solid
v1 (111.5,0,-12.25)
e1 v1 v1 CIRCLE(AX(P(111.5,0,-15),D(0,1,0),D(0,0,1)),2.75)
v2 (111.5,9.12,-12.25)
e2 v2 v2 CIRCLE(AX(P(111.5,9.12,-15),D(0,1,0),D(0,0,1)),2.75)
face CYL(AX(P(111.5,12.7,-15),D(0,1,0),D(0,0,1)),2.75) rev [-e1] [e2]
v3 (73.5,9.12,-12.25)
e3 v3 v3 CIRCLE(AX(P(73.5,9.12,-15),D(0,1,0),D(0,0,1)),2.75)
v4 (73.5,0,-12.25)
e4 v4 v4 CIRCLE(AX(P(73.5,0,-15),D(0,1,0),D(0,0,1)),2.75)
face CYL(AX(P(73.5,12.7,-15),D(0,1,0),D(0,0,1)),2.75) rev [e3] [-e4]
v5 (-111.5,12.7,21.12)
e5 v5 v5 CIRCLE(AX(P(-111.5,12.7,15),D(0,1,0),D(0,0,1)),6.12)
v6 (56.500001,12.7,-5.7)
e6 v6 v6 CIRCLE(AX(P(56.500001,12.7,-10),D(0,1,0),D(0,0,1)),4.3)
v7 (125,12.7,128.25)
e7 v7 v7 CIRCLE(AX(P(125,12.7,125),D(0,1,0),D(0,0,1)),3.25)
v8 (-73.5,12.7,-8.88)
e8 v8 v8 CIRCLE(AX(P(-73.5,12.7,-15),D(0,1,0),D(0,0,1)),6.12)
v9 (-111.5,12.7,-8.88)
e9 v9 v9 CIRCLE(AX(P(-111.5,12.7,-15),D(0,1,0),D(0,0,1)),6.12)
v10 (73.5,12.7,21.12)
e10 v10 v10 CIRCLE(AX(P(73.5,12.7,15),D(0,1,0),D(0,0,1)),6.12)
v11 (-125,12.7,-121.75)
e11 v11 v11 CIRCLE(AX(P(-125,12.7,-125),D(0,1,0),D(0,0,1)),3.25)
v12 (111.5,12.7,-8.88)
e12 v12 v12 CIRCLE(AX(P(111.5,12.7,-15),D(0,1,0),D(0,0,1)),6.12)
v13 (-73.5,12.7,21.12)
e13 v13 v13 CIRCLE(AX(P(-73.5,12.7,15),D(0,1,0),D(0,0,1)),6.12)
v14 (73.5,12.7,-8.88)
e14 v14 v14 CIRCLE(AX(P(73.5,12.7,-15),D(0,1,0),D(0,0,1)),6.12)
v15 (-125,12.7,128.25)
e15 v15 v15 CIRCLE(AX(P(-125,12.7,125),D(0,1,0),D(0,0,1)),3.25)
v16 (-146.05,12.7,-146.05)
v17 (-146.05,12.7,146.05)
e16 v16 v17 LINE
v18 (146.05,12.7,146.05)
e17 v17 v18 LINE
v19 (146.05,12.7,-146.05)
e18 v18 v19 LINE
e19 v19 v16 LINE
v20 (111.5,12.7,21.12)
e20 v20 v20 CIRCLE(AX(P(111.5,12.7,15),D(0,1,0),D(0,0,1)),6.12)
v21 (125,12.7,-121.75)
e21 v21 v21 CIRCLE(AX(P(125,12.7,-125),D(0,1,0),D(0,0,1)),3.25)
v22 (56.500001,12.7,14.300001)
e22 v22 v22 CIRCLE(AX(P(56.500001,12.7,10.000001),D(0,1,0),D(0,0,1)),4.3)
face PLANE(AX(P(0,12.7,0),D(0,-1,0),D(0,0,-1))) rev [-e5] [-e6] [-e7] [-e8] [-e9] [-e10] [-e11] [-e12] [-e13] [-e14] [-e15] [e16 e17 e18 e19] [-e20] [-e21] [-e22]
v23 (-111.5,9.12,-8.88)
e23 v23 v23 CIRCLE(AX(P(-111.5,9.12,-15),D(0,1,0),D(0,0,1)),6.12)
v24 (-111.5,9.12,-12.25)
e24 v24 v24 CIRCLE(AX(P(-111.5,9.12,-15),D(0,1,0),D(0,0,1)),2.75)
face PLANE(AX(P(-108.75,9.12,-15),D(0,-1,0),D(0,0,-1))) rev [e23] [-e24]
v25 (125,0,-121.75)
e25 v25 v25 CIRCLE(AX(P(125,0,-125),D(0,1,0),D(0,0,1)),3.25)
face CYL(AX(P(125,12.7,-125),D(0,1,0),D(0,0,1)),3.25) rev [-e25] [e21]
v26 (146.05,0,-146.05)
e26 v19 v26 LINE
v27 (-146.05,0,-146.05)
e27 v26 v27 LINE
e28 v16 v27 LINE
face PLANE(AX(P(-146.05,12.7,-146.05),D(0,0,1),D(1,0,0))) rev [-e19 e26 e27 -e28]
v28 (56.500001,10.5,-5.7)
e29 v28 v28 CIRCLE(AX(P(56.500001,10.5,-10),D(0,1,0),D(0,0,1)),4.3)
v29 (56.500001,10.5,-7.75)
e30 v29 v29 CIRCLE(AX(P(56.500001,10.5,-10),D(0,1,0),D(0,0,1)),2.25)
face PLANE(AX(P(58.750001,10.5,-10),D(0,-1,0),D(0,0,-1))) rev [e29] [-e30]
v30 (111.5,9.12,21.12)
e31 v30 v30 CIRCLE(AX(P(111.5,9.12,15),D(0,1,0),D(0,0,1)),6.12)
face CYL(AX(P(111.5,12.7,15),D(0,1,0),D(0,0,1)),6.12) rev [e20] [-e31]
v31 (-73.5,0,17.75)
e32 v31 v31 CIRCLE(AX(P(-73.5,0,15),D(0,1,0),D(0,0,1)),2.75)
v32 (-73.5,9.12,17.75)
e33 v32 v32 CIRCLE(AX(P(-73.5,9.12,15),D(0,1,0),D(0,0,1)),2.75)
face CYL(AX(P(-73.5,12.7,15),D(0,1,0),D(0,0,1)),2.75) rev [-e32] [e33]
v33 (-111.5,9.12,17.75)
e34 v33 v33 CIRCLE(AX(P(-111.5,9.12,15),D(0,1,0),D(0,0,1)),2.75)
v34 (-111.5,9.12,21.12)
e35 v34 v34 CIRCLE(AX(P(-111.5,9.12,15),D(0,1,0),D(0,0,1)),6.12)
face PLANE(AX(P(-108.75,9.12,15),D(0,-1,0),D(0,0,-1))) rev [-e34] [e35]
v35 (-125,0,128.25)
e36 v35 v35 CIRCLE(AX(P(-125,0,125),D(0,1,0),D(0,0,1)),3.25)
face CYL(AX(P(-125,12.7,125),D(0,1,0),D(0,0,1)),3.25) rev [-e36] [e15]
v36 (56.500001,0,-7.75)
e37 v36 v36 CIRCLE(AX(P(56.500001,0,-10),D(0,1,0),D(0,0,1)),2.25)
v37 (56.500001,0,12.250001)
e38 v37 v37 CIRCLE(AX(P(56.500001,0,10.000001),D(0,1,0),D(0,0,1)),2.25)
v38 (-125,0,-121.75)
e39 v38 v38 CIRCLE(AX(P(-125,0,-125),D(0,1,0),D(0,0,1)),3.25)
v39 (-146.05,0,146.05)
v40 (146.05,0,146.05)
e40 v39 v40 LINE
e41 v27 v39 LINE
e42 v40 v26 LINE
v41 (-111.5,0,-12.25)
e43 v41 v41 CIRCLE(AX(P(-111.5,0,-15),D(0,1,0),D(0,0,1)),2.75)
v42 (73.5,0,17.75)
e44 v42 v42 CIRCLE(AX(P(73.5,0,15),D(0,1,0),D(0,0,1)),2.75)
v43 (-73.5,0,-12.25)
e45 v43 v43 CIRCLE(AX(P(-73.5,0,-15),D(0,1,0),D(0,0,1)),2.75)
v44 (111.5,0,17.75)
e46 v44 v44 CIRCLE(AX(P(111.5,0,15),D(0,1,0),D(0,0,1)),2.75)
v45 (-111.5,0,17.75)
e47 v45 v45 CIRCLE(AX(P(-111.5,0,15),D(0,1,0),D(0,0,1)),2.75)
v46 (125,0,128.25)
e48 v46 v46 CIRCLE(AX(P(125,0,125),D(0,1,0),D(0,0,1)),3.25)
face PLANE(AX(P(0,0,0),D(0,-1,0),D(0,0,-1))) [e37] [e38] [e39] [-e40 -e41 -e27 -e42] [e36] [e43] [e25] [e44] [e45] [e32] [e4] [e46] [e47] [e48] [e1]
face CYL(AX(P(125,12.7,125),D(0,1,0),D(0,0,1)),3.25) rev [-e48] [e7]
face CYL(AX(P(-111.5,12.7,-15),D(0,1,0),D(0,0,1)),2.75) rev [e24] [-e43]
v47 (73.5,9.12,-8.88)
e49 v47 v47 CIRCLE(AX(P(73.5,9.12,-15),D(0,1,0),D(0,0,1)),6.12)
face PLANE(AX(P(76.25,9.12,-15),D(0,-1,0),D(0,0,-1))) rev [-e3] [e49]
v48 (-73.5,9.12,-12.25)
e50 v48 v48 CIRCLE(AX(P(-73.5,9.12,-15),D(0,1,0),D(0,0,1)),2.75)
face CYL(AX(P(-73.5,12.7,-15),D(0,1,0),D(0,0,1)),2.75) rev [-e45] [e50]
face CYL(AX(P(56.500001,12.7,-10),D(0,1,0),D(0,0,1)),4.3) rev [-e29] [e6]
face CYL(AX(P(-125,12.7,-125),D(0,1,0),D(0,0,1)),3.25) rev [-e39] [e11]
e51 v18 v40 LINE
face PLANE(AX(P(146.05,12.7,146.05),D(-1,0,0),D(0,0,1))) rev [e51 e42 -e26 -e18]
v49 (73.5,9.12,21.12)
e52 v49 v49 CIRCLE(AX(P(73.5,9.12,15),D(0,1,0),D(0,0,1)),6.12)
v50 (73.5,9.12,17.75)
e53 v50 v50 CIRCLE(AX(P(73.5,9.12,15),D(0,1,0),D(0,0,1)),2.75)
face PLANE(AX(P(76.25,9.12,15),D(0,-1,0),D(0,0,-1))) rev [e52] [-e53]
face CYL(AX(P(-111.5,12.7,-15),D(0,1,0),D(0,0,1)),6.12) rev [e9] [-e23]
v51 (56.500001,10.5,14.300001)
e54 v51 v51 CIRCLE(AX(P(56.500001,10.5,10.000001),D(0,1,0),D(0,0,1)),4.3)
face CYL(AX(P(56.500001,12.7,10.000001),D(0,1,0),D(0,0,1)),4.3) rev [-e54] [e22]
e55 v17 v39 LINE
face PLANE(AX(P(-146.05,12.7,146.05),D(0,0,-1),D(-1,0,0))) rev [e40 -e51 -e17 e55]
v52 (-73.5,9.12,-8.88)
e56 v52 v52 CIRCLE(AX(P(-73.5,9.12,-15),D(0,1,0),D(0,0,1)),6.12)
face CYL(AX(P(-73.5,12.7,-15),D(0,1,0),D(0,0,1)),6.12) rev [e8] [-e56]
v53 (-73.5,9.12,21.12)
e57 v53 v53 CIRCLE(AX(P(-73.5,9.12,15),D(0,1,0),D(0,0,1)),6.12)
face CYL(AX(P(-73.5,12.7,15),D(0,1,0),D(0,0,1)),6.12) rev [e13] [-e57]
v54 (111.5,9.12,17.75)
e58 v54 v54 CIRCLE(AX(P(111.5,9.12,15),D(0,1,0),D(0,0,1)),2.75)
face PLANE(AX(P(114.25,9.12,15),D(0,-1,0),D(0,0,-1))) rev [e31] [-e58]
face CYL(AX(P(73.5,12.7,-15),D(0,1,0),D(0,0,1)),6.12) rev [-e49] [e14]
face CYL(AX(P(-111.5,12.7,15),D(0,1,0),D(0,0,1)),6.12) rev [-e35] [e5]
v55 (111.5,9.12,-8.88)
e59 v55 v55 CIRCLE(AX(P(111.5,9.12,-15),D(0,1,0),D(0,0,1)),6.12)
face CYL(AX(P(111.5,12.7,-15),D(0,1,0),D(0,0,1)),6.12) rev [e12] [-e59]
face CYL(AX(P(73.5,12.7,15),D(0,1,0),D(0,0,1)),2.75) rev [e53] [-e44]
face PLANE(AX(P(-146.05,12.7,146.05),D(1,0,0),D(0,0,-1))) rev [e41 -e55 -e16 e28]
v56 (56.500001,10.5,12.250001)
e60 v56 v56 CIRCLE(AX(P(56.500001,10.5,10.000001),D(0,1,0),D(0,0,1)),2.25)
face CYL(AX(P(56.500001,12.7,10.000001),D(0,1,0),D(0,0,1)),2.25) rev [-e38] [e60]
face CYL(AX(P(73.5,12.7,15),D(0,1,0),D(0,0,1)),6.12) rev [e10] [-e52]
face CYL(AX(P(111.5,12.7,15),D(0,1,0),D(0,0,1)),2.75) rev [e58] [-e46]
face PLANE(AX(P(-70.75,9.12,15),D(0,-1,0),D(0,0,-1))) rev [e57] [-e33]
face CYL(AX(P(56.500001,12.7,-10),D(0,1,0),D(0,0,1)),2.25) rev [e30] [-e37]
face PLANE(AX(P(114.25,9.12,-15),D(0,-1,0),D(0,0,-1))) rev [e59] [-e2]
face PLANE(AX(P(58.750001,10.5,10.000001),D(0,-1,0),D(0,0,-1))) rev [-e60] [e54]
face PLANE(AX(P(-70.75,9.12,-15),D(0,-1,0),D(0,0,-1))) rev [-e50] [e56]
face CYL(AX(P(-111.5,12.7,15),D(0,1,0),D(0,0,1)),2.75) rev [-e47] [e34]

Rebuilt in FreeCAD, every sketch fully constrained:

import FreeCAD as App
import Part
import Sketcher

V = App.Vector
Q = App.Units.Quantity

doc = App.newDocument("Part")
body = doc.addObject("PartDesign::Body", "Body")

# Sketch on XZ plane
sketch1 = body.newObject("Sketcher::SketchObject", "Sketch")
sketch1.AttachmentSupport = (doc.getObject("XZ_Plane"), [""])
sketch1.MapMode = "FlatFace"
sketch1.addGeometry(Part.LineSegment(V(-146, -146, 0), V(-146, 146, 0)), False)
sketch1.addGeometry(Part.LineSegment(V(-146, 146, 0), V(146, 146, 0)), False)
sketch1.addGeometry(Part.LineSegment(V(146, 146, 0), V(146, -146, 0)), False)
sketch1.addGeometry(Part.LineSegment(V(146, -146, 0), V(-146, -146, 0)), False)
sketch1.addConstraint(Sketcher.Constraint("Coincident", 0, 2, 1, 1))
sketch1.addConstraint(Sketcher.Constraint("Coincident", 1, 2, 2, 1))
sketch1.addConstraint(Sketcher.Constraint("Coincident", 2, 2, 3, 1))
sketch1.addConstraint(Sketcher.Constraint("Coincident", 3, 2, 0, 1))
sketch1.addConstraint(Sketcher.Constraint("Vertical", 0))
sketch1.addConstraint(Sketcher.Constraint("Horizontal", 1))
sketch1.addConstraint(Sketcher.Constraint("Vertical", 2))
sketch1.addConstraint(Sketcher.Constraint("Horizontal", 3))
sketch1.addConstraint(Sketcher.Constraint("Symmetric", 0, 2, 2, 2, -1, 1))
sketch1.addConstraint(Sketcher.Constraint("Equal", 3, 0))
sketch1.addConstraint(Sketcher.Constraint("DistanceX", 1, 1, 1, 2, Q("292.1 mm")))
pad1 = body.newObject("PartDesign::Pad", "Pad")
pad1.Profile = sketch1
pad1.Length = 12.7
pad1.Reversed = True

# Sketch on XZ plane
sketch2 = body.newObject("Sketcher::SketchObject", "Sketch001")
sketch2.AttachmentSupport = (doc.getObject("XZ_Plane"), [""])
sketch2.MapMode = "FlatFace"
sketch2.AttachmentOffset = App.Placement(V(0, 0, -12.7), App.Rotation())
sketch2.addGeometry(Part.Circle(V(-125, -125, 0), V(0, 0, 1), 3.2), False)
sketch2.addGeometry(Part.Circle(V(125, -125, 0), V(0, 0, 1), 3.2), False)
sketch2.addGeometry(Part.Circle(V(125, 125, 0), V(0, 0, 1), 3.2), False)
sketch2.addGeometry(Part.Circle(V(-125, 125, 0), V(0, 0, 1), 3.2), False)
sketch2.addConstraint(Sketcher.Constraint("Equal", 0, 1))
sketch2.addConstraint(Sketcher.Constraint("Equal", 1, 2))
sketch2.addConstraint(Sketcher.Constraint("Equal", 2, 3))
sketch2.addConstraint(Sketcher.Constraint("Symmetric", 0, 3, 2, 3, -1, 1))
sketch2.addConstraint(Sketcher.Constraint("Symmetric", 1, 3, 3, 3, -1, 1))
sketch2.addConstraint(Sketcher.Constraint("Symmetric", 0, 3, 1, 3, -2))
sketch2.addConstraint(Sketcher.Constraint("Diameter", 0, Q("6.5 mm")))
sketch2.addConstraint(Sketcher.Constraint("DistanceX", 0, 3, -1, 1, Q("125 mm")))
sketch2.addConstraint(Sketcher.Constraint("DistanceY", 0, 3, -1, 1, Q("125 mm")))
doc.recompute()
hole = body.newObject("PartDesign::Hole", "Hole")
hole.Profile = sketch2
hole.ThreadType = "None"
hole.Diameter = 6.5
hole.DepthType = "ThroughAll"
hole.Reversed = True

# Sketch on XZ plane
sketch3 = body.newObject("Sketcher::SketchObject", "Sketch002")
sketch3.AttachmentSupport = (doc.getObject("XZ_Plane"), [""])
sketch3.MapMode = "FlatFace"
sketch3.AttachmentOffset = App.Placement(V(0, 0, -12.7), App.Rotation())
sketch3.addGeometry(Part.Circle(V(-73.5, 15, 0), V(0, 0, 1), 2.8), False)
sketch3.addGeometry(Part.Circle(V(-111.5, -15, 0), V(0, 0, 1), 2.8), False)
sketch3.addGeometry(Part.Circle(V(-111.5, 15, 0), V(0, 0, 1), 2.8), False)
sketch3.addGeometry(Part.Circle(V(-73.5, -15, 0), V(0, 0, 1), 2.8), False)
sketch3.addConstraint(Sketcher.Constraint("Equal", 0, 1))
sketch3.addConstraint(Sketcher.Constraint("Equal", 1, 2))
sketch3.addConstraint(Sketcher.Constraint("Equal", 2, 3))
sketch3.addConstraint(Sketcher.Constraint("Symmetric", 1, 3, 2, 3, -1))
sketch3.addConstraint(Sketcher.Constraint("Symmetric", 0, 3, 3, 3, -1))
sketch3.addConstraint(Sketcher.Constraint("Horizontal", 0, 3, 2, 3))
sketch3.addConstraint(Sketcher.Constraint("Diameter", 0, Q("5.5 mm")))
sketch3.addConstraint(Sketcher.Constraint("DistanceY", -1, 1, 0, 3, Q("15 mm")))
sketch3.addConstraint(Sketcher.Constraint("DistanceX", 1, 3, 0, 3, Q("38 mm")))
sketch3.addConstraint(Sketcher.Constraint("DistanceX", 0, 3, -1, 1, Q("73.5 mm")))
doc.recompute()
hole2 = body.newObject("PartDesign::Hole", "Hole001")
hole2.Profile = sketch3
hole2.ThreadType = "None"
hole2.Diameter = 5.5
hole2.DepthType = "ThroughAll"
hole2.HoleCutType = "Counterbore"
hole2.HoleCutDiameter = 12.24
hole2.HoleCutDepth = 3.58
hole2.Reversed = True
doc.recompute()

mirrored = body.newObject("PartDesign::Mirrored", "Mirrored")
mirrored.Originals = [hole2]
mirrored.MirrorPlane = (doc.getObject("YZ_Plane"), [""])
body.Tip = mirrored

# Sketch on XZ plane
sketch4 = body.newObject("Sketcher::SketchObject", "Sketch003")
sketch4.AttachmentSupport = (doc.getObject("XZ_Plane"), [""])
sketch4.MapMode = "FlatFace"
sketch4.AttachmentOffset = App.Placement(V(0, 0, -12.7), App.Rotation())
sketch4.addGeometry(Part.Circle(V(56.5, -10, 0), V(0, 0, 1), 2.2), False)
sketch4.addGeometry(Part.Circle(V(56.5, 10, 0), V(0, 0, 1), 2.2), False)
sketch4.addConstraint(Sketcher.Constraint("Equal", 0, 1))
sketch4.addConstraint(Sketcher.Constraint("Symmetric", 0, 3, 1, 3, -1))
sketch4.addConstraint(Sketcher.Constraint("Diameter", 0, Q("4.5 mm")))
sketch4.addConstraint(Sketcher.Constraint("DistanceY", 0, 3, -1, 1, Q("10 mm")))
sketch4.addConstraint(Sketcher.Constraint("DistanceX", -1, 1, 0, 3, Q("56.500001 mm")))
doc.recompute()
hole3 = body.newObject("PartDesign::Hole", "Hole002")
hole3.Profile = sketch4
hole3.ThreadType = "None"
hole3.Diameter = 4.5
hole3.DepthType = "ThroughAll"
hole3.HoleCutType = "Counterbore"
hole3.HoleCutDiameter = 8.6
hole3.HoleCutDepth = 2.2
hole3.Reversed = True

doc.recompute()
